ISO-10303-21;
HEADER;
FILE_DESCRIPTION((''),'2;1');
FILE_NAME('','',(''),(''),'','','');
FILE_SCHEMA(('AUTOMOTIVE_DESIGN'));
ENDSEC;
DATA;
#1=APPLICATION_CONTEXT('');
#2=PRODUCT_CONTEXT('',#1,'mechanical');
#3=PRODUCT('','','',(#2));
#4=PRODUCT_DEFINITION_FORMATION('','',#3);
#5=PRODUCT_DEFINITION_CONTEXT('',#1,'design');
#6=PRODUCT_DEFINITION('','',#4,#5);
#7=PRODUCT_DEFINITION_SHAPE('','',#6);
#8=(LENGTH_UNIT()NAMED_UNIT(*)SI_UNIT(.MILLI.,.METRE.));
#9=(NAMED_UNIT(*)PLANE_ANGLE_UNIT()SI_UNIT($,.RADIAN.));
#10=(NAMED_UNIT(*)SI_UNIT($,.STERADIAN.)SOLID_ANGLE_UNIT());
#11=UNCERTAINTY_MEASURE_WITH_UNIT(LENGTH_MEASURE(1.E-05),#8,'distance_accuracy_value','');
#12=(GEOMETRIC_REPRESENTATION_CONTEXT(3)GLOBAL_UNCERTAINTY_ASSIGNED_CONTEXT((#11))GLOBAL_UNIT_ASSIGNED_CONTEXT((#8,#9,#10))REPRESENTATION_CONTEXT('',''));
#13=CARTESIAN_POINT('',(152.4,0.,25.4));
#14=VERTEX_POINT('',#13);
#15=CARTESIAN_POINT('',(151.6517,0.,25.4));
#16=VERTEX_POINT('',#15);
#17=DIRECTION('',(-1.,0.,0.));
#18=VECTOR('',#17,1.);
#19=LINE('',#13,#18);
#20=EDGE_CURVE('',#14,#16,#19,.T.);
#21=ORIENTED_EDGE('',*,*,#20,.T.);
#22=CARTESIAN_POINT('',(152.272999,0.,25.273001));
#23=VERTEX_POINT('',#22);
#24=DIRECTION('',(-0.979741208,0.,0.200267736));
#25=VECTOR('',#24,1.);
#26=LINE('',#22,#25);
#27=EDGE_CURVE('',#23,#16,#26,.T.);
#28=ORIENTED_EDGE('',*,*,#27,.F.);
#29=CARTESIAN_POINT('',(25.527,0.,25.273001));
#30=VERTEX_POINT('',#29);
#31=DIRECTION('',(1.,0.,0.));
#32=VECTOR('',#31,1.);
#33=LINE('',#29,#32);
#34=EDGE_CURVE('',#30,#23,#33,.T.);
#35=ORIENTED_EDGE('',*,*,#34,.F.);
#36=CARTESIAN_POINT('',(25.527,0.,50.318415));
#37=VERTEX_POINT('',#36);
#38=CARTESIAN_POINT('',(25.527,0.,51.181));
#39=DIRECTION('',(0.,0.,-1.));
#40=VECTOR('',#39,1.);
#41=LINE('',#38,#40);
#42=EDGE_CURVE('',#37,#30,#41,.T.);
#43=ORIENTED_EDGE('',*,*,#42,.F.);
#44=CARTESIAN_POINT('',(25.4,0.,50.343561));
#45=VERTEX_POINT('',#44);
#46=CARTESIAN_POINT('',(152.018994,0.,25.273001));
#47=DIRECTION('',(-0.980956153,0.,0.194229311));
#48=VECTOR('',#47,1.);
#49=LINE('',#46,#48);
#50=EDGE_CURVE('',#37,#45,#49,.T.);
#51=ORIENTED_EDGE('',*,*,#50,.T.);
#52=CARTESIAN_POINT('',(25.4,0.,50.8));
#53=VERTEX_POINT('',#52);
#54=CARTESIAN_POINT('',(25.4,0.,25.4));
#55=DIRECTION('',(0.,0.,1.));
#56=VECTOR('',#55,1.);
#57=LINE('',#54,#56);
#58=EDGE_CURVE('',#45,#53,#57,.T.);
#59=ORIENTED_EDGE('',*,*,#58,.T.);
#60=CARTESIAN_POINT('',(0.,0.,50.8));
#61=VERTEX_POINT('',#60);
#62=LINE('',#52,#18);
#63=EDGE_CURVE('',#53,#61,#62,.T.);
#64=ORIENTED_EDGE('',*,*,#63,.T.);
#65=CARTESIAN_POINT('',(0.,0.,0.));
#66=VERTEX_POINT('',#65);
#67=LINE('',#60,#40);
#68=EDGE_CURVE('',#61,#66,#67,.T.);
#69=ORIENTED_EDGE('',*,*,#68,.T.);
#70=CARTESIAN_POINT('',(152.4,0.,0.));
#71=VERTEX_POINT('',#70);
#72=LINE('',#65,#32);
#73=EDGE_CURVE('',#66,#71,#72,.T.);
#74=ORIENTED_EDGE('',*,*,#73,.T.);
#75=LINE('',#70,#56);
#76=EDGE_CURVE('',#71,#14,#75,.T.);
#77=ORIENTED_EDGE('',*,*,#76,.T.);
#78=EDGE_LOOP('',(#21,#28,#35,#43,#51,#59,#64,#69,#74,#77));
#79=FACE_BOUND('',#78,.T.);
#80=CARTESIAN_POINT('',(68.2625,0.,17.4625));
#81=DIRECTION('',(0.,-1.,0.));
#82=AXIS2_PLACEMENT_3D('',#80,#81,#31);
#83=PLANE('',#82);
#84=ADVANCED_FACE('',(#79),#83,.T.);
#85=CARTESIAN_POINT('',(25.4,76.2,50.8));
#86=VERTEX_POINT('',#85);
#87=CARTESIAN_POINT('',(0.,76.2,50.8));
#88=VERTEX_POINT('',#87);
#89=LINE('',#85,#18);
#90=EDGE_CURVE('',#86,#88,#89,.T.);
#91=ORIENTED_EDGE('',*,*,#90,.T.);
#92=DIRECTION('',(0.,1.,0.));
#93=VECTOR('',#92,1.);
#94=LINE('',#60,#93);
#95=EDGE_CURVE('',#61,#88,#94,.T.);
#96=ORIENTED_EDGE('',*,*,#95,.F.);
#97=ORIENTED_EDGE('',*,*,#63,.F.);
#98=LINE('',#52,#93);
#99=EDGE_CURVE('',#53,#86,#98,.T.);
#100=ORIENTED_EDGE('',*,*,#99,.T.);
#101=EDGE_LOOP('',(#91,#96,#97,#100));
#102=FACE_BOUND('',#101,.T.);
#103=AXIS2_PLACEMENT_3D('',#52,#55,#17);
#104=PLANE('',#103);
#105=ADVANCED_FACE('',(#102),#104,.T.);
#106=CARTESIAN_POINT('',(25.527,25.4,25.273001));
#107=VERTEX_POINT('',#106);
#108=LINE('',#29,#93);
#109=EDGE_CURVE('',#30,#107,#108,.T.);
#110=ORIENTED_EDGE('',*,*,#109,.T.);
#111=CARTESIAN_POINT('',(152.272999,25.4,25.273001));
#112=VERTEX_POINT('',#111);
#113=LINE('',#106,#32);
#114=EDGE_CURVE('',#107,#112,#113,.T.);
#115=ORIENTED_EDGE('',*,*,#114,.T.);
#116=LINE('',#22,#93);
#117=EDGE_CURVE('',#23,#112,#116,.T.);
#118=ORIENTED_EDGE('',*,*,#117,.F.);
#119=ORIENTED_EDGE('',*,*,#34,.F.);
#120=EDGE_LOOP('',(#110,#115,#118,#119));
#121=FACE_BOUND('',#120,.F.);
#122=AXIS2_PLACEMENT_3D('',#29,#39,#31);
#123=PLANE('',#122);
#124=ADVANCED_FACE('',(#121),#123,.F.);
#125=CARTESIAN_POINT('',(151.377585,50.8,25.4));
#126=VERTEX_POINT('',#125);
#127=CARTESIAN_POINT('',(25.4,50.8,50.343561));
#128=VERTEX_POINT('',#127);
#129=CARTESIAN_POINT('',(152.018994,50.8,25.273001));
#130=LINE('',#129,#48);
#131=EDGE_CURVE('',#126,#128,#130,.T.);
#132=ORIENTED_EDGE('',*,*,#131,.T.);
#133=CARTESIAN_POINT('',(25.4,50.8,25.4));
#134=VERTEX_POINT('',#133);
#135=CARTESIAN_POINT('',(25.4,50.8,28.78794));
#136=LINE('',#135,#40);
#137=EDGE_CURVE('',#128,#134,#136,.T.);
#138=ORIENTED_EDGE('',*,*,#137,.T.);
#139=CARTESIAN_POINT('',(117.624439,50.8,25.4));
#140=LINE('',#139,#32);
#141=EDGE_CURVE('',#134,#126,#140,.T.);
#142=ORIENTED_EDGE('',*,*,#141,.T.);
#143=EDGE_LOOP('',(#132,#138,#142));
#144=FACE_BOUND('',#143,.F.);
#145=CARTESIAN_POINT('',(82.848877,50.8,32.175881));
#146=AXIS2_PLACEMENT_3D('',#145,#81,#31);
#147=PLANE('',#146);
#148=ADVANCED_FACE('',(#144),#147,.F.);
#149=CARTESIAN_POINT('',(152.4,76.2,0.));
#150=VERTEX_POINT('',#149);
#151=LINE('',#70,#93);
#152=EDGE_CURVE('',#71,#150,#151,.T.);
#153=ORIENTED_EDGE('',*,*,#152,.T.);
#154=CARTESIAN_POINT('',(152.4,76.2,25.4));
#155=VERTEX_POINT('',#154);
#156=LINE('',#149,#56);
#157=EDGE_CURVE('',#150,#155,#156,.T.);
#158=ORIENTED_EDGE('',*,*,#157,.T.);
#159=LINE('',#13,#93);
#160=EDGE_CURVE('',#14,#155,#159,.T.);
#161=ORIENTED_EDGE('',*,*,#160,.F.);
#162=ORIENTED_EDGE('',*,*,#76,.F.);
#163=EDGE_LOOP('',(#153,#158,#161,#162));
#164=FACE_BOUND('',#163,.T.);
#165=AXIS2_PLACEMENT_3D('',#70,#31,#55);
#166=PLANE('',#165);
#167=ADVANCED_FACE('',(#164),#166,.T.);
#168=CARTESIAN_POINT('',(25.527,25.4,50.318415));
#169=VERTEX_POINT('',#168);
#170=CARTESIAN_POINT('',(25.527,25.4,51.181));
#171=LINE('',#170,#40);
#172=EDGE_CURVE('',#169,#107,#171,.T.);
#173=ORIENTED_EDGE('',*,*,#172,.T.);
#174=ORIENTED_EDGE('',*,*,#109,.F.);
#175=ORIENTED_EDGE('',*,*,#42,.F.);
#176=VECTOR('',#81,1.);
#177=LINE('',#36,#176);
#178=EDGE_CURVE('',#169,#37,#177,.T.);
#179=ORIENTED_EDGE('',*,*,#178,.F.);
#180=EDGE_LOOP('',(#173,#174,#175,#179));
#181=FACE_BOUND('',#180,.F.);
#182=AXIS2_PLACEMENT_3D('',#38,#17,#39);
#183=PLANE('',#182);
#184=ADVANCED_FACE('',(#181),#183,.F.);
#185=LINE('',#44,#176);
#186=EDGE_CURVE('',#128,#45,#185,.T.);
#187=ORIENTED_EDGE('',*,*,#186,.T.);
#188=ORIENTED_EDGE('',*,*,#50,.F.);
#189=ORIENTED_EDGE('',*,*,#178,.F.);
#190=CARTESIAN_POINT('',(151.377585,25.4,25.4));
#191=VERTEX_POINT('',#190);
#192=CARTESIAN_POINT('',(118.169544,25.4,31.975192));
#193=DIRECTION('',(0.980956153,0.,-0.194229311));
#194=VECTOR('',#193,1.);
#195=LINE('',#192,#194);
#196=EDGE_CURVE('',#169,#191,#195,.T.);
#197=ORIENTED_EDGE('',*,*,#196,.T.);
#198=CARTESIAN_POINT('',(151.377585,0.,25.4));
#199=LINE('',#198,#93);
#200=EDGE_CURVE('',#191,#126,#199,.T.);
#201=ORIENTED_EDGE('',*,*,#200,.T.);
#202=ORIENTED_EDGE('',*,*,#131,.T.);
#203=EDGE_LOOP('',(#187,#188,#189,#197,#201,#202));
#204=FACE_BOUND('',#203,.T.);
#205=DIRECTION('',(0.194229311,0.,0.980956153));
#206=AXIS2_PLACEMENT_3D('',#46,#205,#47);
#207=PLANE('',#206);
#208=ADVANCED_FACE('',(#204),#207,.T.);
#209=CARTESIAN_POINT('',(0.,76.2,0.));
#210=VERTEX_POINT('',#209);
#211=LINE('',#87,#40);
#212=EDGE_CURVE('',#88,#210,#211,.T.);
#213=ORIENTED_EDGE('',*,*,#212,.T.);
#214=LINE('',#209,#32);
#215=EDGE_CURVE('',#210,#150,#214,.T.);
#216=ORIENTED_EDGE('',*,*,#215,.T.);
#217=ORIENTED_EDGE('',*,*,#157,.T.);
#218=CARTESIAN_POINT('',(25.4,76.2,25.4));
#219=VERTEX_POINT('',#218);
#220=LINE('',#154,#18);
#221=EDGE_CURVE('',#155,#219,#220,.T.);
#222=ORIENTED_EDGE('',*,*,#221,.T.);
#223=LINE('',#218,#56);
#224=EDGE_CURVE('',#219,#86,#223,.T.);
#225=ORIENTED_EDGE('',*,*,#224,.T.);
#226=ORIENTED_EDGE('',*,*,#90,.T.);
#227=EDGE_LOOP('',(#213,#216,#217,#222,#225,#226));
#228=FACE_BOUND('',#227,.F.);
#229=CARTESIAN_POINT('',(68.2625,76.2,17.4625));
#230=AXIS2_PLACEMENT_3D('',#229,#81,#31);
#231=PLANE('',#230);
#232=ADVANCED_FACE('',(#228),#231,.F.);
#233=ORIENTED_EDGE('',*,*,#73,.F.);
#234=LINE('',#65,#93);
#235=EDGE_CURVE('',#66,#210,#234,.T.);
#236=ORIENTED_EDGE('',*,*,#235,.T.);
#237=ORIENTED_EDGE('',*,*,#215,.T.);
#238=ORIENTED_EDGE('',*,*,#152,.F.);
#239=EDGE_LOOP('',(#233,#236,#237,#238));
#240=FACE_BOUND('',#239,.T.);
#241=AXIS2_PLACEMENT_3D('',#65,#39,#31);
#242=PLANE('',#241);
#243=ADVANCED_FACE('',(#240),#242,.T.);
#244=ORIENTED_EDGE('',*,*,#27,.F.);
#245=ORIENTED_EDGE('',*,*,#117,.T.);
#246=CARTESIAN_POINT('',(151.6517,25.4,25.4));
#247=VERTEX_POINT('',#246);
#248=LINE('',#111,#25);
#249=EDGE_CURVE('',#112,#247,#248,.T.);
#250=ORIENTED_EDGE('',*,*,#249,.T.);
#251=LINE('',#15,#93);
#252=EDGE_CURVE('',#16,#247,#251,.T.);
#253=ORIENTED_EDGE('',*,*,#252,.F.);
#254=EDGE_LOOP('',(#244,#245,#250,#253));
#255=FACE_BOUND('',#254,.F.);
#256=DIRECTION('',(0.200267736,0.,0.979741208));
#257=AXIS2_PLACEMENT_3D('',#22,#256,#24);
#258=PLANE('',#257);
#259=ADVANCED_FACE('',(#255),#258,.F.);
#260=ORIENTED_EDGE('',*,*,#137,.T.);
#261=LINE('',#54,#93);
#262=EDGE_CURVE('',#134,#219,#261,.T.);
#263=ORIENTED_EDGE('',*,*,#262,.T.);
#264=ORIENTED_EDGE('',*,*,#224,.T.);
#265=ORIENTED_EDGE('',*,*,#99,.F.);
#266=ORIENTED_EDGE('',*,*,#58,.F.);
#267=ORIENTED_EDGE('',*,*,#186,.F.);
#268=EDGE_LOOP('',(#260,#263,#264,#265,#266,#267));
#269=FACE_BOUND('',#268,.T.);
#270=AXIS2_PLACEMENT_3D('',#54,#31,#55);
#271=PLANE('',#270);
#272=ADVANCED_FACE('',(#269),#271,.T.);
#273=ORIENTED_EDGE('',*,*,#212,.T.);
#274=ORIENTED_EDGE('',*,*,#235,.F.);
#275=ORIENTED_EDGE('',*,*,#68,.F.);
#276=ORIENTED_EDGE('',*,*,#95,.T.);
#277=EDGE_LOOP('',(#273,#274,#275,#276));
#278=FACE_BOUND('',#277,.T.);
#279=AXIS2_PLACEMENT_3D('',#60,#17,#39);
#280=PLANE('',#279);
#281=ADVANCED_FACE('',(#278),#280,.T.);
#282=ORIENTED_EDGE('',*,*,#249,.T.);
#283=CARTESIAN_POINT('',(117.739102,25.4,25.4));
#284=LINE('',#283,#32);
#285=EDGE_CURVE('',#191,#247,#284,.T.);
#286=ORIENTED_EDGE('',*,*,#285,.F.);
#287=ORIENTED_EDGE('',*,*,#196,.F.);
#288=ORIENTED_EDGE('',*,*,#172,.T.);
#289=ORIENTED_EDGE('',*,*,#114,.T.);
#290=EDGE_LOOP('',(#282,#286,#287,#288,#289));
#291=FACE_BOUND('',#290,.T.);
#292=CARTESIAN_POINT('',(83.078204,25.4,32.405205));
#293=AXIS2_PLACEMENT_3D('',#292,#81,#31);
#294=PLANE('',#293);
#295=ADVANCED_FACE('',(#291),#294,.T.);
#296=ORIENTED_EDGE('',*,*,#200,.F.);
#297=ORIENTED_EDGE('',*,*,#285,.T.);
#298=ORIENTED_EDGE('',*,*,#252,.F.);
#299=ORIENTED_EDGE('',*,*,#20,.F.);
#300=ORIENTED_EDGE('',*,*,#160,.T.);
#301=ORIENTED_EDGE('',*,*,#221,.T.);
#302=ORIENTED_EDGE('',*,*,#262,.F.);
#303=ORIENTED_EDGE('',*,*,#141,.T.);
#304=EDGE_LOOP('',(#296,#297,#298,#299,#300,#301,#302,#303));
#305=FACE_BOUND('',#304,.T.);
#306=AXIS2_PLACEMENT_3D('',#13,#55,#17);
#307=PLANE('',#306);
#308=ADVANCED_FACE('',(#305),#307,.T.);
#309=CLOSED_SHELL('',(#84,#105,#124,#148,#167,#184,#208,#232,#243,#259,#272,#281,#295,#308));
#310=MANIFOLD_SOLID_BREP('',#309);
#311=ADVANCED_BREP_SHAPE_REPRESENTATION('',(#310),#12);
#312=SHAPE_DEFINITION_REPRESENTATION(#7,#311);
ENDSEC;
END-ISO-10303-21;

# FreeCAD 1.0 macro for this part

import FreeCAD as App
import Part
import Sketcher
from FreeCAD import Vector
Q = App.Units.Quantity

doc = App.newDocument("Part")
body = doc.addObject("PartDesign::Body", "Body")

sketch1 = doc.addObject("Sketcher::SketchObject", "Sketch")
body.addObject(sketch1)
sketch1.AttachmentSupport = (doc.XZ_Plane, [""])
sketch1.MapMode = "FlatFace"
sketch1.addGeometry(Part.LineSegment(Vector(0, 51, 0), Vector(0, 0, 0)), False)
sketch1.addGeometry(Part.LineSegment(Vector(0, 0, 0), Vector(152, 0, 0)), False)
sketch1.addGeometry(Part.LineSegment(Vector(152, 0, 0), Vector(152, 25, 0)), False)
sketch1.addGeometry(Part.LineSegment(Vector(152, 25, 0), Vector(25, 25, 0)), False)
sketch1.addGeometry(Part.LineSegment(Vector(25, 25, 0), Vector(25, 51, 0)), False)
sketch1.addGeometry(Part.LineSegment(Vector(25, 51, 0), Vector(0, 51, 0)), False)
sketch1.addConstraint(Sketcher.Constraint("Coincident", 0, 2, 1, 1))
sketch1.addConstraint(Sketcher.Constraint("Coincident", 1, 2, 2, 1))
sketch1.addConstraint(Sketcher.Constraint("Coincident", 2, 2, 3, 1))
sketch1.addConstraint(Sketcher.Constraint("Coincident", 3, 2, 4, 1))
sketch1.addConstraint(Sketcher.Constraint("Coincident", 4, 2, 5, 1))
sketch1.addConstraint(Sketcher.Constraint("Coincident", 5, 2, 0, 1))
sketch1.addConstraint(Sketcher.Constraint("Vertical", 0))
sketch1.addConstraint(Sketcher.Constraint("Horizontal", 1))
sketch1.addConstraint(Sketcher.Constraint("Vertical", 2))
sketch1.addConstraint(Sketcher.Constraint("Horizontal", 3))
sketch1.addConstraint(Sketcher.Constraint("Vertical", 4))
sketch1.addConstraint(Sketcher.Constraint("Horizontal", 5))
sketch1.addConstraint(Sketcher.Constraint("Coincident", 0, 2, -1, 1))
sketch1.addConstraint(Sketcher.Constraint("Equal", 5, 2))
sketch1.addConstraint(Sketcher.Constraint("Equal", 2, 4))
sketch1.addConstraint(Sketcher.Constraint("DistanceX", 1, 1, 1, 2, Q("6 in")))
sketch1.addConstraint(Sketcher.Constraint("DistanceX", 3, 2, 3, 1, Q("5 in")))
pad1 = doc.addObject("PartDesign::Pad", "Pad")
body.addObject(pad1)
pad1.Profile = sketch1
pad1.Length = Q("3 in")
pad1.Reversed = True

sketch2 = doc.addObject("Sketcher::SketchObject", "Sketch001")
body.addObject(sketch2)
sketch2.AttachmentSupport = (doc.XZ_Plane, [""])
sketch2.MapMode = "FlatFace"
sketch2.addGeometry(Part.LineSegment(Vector(25, 50, 0), Vector(25, 25, 0)), False)
sketch2.addGeometry(Part.LineSegment(Vector(25, 25, 0), Vector(152, 25, 0)), False)
sketch2.addGeometry(Part.LineSegment(Vector(152, 25, 0), Vector(25, 50, 0)), False)
sketch2.addConstraint(Sketcher.Constraint("Coincident", 0, 2, 1, 1))
sketch2.addConstraint(Sketcher.Constraint("Coincident", 1, 2, 2, 1))
sketch2.addConstraint(Sketcher.Constraint("Coincident", 2, 2, 0, 1))
sketch2.addConstraint(Sketcher.Constraint("Vertical", 0))
sketch2.addConstraint(Sketcher.Constraint("Horizontal", 1))
sketch2.addConstraint(Sketcher.Constraint("DistanceX", 1, 1, 1, 2, Q("4.9999998 in")))
sketch2.addConstraint(Sketcher.Constraint("DistanceY", 0, 2, 0, 1, Q("0.9899999 in")))
sketch2.addConstraint(Sketcher.Constraint("DistanceX", -1, 1, 0, 2, Q("0.985 in")))
sketch2.addConstraint(Sketcher.Constraint("DistanceY", -1, 1, 0, 2, Q("0.995 in")))
pad2 = doc.addObject("PartDesign::Pad", "Pad001")
body.addObject(pad2)
pad2.Profile = sketch2
pad2.Length = Q("2 in")
pad2.Reversed = True

sketch3 = doc.addObject("Sketcher::SketchObject", "Sketch002")
body.addObject(sketch3)
sketch3.AttachmentSupport = (doc.XZ_Plane, [""])
sketch3.MapMode = "FlatFace"
sketch3.addGeometry(Part.LineSegment(Vector(152, 25, 0), Vector(26, 51, 0)), False)
sketch3.addGeometry(Part.LineSegment(Vector(26, 51, 0), Vector(26, 25, 0)), False)
sketch3.addGeometry(Part.LineSegment(Vector(26, 25, 0), Vector(152, 25, 0)), False)
sketch3.addConstraint(Sketcher.Constraint("Coincident", 0, 2, 1, 1))
sketch3.addConstraint(Sketcher.Constraint("Coincident", 1, 2, 2, 1))
sketch3.addConstraint(Sketcher.Constraint("Coincident", 2, 2, 0, 1))
sketch3.addConstraint(Sketcher.Constraint("Vertical", 1))
sketch3.addConstraint(Sketcher.Constraint("Horizontal", 2))
sketch3.addConstraint(Sketcher.Constraint("DistanceX", 2, 1, 2, 2, Q("4.99 in")))
sketch3.addConstraint(Sketcher.Constraint("DistanceY", 1, 2, 1, 1, Q("1.02 in")))
sketch3.addConstraint(Sketcher.Constraint("DistanceX", -1, 1, 0, 2, Q("1.005 in")))
sketch3.addConstraint(Sketcher.Constraint("DistanceY", -1, 1, 0, 2, Q("2.015 in")))
pocket1 = doc.addObject("PartDesign::Pocket", "Pocket")
body.addObject(pocket1)
pocket1.Profile = sketch3
pocket1.Length = Q("1 in")

doc.recompute()
